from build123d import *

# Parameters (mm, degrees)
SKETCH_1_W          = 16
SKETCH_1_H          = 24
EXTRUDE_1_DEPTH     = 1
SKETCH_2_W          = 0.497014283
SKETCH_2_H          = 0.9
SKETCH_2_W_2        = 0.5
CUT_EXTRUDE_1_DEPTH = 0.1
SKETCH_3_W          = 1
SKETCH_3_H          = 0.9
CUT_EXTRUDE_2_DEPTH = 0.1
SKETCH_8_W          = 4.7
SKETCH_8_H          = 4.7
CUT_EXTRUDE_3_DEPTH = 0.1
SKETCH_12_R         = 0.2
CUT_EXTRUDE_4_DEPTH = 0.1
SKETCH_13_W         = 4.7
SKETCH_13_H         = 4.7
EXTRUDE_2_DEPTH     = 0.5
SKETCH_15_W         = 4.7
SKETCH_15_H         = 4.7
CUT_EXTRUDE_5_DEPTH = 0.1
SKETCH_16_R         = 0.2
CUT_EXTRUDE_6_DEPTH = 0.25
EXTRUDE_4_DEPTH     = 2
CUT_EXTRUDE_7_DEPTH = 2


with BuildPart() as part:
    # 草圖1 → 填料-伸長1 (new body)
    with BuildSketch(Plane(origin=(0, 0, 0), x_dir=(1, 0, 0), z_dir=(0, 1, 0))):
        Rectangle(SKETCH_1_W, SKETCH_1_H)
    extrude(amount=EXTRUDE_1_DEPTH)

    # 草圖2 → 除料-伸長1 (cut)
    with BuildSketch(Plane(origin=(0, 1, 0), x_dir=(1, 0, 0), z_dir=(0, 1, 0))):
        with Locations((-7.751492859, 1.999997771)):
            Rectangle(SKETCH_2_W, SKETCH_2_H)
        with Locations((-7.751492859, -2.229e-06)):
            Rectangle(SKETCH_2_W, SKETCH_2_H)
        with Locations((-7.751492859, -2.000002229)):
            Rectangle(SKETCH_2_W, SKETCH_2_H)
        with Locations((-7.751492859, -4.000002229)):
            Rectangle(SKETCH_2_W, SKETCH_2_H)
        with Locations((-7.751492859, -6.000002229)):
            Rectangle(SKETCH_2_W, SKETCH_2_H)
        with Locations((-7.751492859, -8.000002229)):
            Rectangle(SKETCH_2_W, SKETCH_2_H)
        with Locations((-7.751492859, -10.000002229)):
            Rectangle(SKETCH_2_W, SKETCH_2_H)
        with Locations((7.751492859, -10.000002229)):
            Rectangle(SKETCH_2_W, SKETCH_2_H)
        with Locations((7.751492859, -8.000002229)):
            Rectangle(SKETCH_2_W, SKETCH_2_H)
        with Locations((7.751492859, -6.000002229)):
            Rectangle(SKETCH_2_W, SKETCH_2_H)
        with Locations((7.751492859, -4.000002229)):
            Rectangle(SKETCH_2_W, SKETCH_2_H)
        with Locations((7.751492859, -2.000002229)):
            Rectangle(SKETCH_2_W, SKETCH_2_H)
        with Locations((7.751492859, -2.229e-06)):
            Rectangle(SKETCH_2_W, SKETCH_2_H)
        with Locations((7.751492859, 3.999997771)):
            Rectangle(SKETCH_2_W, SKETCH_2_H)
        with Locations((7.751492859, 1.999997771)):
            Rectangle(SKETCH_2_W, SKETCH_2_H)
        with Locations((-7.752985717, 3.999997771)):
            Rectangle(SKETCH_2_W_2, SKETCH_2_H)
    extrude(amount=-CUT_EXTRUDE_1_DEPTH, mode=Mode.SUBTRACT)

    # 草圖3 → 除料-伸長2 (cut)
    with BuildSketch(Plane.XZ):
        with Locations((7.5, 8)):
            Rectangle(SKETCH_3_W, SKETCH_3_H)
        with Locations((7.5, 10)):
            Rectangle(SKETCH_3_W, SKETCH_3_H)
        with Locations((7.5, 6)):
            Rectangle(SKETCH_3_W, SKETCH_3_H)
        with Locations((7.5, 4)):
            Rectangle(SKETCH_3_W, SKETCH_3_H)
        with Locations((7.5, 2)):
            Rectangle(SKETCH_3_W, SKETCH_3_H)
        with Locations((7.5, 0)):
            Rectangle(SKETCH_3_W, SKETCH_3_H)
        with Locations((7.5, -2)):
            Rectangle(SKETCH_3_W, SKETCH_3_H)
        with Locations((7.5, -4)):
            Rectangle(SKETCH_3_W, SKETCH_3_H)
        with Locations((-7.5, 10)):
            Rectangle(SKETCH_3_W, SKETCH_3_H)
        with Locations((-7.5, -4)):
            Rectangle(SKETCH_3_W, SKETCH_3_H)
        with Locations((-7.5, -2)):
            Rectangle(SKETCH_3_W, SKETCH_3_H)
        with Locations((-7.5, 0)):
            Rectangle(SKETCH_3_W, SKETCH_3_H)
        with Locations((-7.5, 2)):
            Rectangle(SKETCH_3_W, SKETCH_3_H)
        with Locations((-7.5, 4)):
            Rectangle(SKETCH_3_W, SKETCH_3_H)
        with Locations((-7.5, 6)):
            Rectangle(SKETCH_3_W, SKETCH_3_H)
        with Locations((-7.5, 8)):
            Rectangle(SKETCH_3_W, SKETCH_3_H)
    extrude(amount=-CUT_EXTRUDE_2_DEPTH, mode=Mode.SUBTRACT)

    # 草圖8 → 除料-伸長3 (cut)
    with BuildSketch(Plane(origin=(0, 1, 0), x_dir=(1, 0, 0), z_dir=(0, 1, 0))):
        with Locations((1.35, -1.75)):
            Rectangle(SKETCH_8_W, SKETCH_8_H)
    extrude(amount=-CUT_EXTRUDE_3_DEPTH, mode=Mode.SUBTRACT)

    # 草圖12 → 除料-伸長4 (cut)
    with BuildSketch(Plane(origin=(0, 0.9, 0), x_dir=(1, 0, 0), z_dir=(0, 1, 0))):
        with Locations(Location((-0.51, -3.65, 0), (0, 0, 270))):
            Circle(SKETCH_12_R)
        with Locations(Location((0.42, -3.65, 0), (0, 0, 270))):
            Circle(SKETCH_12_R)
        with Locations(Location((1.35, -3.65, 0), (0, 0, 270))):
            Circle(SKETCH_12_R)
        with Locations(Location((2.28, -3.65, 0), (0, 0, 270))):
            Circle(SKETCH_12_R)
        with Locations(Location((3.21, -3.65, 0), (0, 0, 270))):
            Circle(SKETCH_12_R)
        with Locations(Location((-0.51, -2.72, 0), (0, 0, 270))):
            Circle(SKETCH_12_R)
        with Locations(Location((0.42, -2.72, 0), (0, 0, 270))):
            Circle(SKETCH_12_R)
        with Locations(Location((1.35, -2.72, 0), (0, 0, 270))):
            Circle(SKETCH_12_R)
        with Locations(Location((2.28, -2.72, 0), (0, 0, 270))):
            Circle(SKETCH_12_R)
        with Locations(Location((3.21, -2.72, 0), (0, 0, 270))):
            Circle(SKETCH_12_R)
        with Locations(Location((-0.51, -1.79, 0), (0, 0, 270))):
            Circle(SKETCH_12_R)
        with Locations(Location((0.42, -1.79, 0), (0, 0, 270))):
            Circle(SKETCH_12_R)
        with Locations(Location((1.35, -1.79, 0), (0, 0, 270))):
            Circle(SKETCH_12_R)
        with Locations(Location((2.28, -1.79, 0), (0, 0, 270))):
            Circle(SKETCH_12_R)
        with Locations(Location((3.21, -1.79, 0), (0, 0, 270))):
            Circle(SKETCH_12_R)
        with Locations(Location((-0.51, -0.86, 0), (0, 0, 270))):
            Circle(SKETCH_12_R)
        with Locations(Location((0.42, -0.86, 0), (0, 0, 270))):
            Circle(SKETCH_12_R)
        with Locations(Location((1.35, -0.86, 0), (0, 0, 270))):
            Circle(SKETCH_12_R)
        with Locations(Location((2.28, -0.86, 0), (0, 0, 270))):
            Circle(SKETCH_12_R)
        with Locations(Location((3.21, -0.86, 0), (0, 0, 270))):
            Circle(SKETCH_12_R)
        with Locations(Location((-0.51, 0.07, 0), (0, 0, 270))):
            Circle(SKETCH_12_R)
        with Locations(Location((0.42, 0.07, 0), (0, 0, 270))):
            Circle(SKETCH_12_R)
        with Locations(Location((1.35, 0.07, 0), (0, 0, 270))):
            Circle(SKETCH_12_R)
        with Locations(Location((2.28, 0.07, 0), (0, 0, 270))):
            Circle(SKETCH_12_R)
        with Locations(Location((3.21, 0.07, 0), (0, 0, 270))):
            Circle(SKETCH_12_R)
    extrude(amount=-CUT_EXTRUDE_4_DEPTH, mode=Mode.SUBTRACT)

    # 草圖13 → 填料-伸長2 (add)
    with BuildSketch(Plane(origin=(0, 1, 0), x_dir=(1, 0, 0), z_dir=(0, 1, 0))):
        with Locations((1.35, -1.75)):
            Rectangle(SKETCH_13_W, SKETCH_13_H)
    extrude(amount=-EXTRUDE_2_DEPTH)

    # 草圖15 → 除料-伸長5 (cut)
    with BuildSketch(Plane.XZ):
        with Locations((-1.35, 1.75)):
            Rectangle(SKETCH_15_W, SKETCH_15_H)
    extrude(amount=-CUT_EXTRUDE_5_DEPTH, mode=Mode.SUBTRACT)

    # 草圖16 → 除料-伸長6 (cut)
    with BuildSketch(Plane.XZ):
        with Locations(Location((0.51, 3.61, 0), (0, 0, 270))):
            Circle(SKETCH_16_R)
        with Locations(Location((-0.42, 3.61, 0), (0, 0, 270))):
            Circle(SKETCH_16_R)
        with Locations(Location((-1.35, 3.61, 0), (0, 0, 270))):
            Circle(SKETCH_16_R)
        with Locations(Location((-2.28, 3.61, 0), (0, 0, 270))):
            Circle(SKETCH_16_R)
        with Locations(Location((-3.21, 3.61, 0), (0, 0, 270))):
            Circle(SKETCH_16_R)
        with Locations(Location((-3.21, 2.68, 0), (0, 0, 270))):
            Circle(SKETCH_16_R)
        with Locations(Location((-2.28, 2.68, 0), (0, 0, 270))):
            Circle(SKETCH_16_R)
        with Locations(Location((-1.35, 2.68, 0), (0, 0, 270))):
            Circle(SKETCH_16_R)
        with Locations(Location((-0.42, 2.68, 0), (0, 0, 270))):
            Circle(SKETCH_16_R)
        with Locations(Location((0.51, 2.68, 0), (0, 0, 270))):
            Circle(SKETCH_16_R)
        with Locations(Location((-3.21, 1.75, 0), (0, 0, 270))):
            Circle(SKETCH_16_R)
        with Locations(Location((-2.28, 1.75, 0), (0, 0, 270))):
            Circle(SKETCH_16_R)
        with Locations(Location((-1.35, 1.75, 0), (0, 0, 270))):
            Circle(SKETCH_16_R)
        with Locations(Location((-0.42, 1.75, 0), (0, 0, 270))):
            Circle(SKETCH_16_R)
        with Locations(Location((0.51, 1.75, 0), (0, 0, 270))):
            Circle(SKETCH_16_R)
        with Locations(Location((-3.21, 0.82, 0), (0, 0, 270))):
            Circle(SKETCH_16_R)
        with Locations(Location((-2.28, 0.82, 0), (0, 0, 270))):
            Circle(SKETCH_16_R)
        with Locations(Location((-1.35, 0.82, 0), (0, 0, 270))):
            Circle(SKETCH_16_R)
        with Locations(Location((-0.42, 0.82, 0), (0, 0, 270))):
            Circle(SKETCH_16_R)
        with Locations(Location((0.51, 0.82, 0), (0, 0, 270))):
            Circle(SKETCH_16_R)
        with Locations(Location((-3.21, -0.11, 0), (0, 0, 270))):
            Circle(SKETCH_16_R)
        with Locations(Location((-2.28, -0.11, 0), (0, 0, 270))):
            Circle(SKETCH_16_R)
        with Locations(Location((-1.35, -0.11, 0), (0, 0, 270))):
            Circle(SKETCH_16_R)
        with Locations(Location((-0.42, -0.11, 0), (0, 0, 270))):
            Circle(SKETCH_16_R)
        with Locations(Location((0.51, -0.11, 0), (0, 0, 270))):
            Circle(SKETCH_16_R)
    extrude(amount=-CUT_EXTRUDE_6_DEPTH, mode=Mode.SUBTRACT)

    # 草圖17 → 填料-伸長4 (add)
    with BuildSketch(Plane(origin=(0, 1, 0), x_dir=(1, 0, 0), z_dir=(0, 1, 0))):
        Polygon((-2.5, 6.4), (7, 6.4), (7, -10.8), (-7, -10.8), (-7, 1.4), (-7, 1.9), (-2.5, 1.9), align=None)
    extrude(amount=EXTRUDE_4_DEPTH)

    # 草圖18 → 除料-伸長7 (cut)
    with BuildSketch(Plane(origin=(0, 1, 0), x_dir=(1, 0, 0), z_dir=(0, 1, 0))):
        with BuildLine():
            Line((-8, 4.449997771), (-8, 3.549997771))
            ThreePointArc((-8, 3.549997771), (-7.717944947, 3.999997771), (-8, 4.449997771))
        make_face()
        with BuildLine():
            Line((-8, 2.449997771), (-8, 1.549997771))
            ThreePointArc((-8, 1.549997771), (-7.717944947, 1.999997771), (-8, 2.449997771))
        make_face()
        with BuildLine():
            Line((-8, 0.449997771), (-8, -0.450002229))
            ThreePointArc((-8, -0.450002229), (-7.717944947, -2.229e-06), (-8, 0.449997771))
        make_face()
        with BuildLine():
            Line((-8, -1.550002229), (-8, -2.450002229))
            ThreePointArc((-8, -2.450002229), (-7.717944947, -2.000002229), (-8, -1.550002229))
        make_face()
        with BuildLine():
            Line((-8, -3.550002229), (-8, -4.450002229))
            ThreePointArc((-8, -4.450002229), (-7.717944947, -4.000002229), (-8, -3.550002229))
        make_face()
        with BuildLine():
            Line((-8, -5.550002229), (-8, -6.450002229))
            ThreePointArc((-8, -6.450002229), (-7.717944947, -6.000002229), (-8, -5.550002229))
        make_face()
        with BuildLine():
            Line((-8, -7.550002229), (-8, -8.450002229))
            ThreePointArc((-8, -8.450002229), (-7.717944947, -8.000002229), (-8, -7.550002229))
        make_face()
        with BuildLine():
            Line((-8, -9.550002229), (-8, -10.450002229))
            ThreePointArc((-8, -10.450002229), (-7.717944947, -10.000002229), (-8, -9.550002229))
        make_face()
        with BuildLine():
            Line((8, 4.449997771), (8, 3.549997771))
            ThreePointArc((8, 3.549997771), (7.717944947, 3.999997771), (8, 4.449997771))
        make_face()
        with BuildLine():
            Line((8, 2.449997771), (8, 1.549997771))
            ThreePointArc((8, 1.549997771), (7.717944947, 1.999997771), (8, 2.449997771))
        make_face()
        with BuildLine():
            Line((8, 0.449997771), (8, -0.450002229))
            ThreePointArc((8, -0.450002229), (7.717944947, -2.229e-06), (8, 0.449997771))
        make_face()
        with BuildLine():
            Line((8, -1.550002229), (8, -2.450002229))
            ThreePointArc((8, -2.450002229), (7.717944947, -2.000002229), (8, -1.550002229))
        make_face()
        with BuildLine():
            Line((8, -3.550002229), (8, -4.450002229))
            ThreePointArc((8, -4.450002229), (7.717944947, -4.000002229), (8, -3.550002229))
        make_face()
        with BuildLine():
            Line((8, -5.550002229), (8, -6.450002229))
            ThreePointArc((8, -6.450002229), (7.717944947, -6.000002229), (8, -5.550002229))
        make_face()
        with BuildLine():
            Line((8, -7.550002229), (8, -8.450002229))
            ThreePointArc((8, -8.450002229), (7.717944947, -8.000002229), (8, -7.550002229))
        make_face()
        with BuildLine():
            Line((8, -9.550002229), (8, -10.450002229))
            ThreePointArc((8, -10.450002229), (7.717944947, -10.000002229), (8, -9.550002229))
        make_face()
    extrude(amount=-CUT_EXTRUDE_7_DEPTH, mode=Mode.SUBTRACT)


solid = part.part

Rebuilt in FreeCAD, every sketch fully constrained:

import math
import FreeCAD as App
import Part
import Sketcher
from FreeCAD import Vector


def add_polygon(sketch, points):
    """Adds a closed chain of lines whose ends are joined by coincident constraints."""
    first, n = sketch.GeometryCount, len(points)
    for a, b in zip(points, points[1:] + points[:1]):
        sketch.addGeometry(Part.LineSegment(App.Vector(*a, 0), App.Vector(*b, 0)), False)
    for i in range(n):
        sketch.addConstraint(Sketcher.Constraint("Coincident", first + i, 2, first + (i + 1) % n, 1))

doc = App.newDocument("Part")
body = doc.addObject("PartDesign::Body", "Body")

# Sketch on XZ plane
sketch1 = doc.addObject("Sketcher::SketchObject", "Sketch")
body.addObject(sketch1)
sketch1.AttachmentSupport = (doc.XZ_Plane, [""])
sketch1.MapMode = "FlatFace"
add_polygon(sketch1, [(-8, -12), (-8, 12), (8, 12), (8, -12)])  # lines 0-3
sketch1.addConstraint([
    Sketcher.Constraint("Vertical", 0),
    Sketcher.Constraint("Horizontal", 1),
    Sketcher.Constraint("Vertical", 2),
    Sketcher.Constraint("Horizontal", 3),
    Sketcher.Constraint("Symmetric", 0, 2, 2, 2, -1, 1),
    Sketcher.Constraint("DistanceX", 1, 1, 1, 2, 16.0),
    Sketcher.Constraint("DistanceY", 0, 1, 0, 2, 24.0),
])
pad1 = doc.addObject("PartDesign::Pad", "Pad")
body.addObject(pad1)
pad1.Profile = sketch1
pad1.Length = 1
pad1.Reversed = True

# Sketch on XZ plane
sketch2 = doc.addObject("Sketcher::SketchObject", "Sketch001")
body.addObject(sketch2)
sketch2.AttachmentSupport = (doc.XZ_Plane, [""])
sketch2.MapMode = "FlatFace"
sketch2.AttachmentOffset = App.Placement(Vector(0, 0, -1), App.Rotation())
add_polygon(sketch2, [(-8, -2.45), (-8, -1.55), (-7.5, -1.55), (-7.5, -2.45)])  # lines 0-3
add_polygon(sketch2, [(-8, -0.45), (-8, 0.45), (-7.5, 0.45), (-7.5, -0.45)])  # lines 4-7
add_polygon(sketch2, [(-8, 1.55), (-8, 2.45), (-7.5, 2.45), (-7.5, 1.55)])  # lines 8-11
add_polygon(sketch2, [(-8, 3.55), (-8, 4.45), (-7.5, 4.45), (-7.5, 3.55)])  # lines 12-15
add_polygon(sketch2, [(-8, 5.55), (-8, 6.45), (-7.5, 6.45), (-7.5, 5.55)])  # lines 16-19
add_polygon(sketch2, [(-8, 7.55), (-8, 8.45), (-7.5, 8.45), (-7.5, 7.55)])  # lines 20-23
add_polygon(sketch2, [(-8, 9.55), (-8, 10.45), (-7.5, 10.45), (-7.5, 9.55)])  # lines 24-27
add_polygon(sketch2, [(7.5, 9.55), (7.5, 10.45), (8, 10.45), (8, 9.55)])  # lines 28-31
add_polygon(sketch2, [(7.5, 7.55), (7.5, 8.45), (8, 8.45), (8, 7.55)])  # lines 32-35
add_polygon(sketch2, [(7.5, 5.55), (7.5, 6.45), (8, 6.45), (8, 5.55)])  # lines 36-39
add_polygon(sketch2, [(7.5, 3.55), (7.5, 4.45), (8, 4.45), (8, 3.55)])  # lines 40-43
add_polygon(sketch2, [(7.5, 1.55), (7.5, 2.45), (8, 2.45), (8, 1.55)])  # lines 44-47
add_polygon(sketch2, [(7.5, -0.45), (7.5, 0.45), (8, 0.45), (8, -0.45)])  # lines 48-51
add_polygon(sketch2, [(7.5, -4.45), (7.5, -3.55), (8, -3.55), (8, -4.45)])  # lines 52-55
add_polygon(sketch2, [(7.5, -2.45), (7.5, -1.55), (8, -1.55), (8, -2.45)])  # lines 56-59
add_polygon(sketch2, [(-8, -4.45), (-8, -3.55), (-7.5, -3.55), (-7.5, -4.45)])  # lines 60-63
sketch2.addConstraint([
    Sketcher.Constraint("Vertical", 0),
    Sketcher.Constraint("Horizontal", 1),
    Sketcher.Constraint("Vertical", 2),
    Sketcher.Constraint("Horizontal", 3),
    Sketcher.Constraint("Vertical", 4),
    Sketcher.Constraint("Horizontal", 5),
    Sketcher.Constraint("Vertical", 6),
    Sketcher.Constraint("Horizontal", 7),
    Sketcher.Constraint("Vertical", 8),
    Sketcher.Constraint("Horizontal", 9),
    Sketcher.Constraint("Vertical", 10),
    Sketcher.Constraint("Horizontal", 11),
    Sketcher.Constraint("Vertical", 12),
    Sketcher.Constraint("Horizontal", 13),
    Sketcher.Constraint("Vertical", 14),
    Sketcher.Constraint("Horizontal", 15),
    Sketcher.Constraint("Vertical", 16),
    Sketcher.Constraint("Horizontal", 17),
    Sketcher.Constraint("Vertical", 18),
    Sketcher.Constraint("Horizontal", 19),
    Sketcher.Constraint("Vertical", 20),
    Sketcher.Constraint("Horizontal", 21),
    Sketcher.Constraint("Vertical", 22),
    Sketcher.Constraint("Horizontal", 23),
    Sketcher.Constraint("Vertical", 24),
    Sketcher.Constraint("Horizontal", 25),
    Sketcher.Constraint("Vertical", 26),
    Sketcher.Constraint("Horizontal", 27),
    Sketcher.Constraint("Vertical", 28),
    Sketcher.Constraint("Horizontal", 29),
    Sketcher.Constraint("Vertical", 30),
    Sketcher.Constraint("Horizontal", 31),
    Sketcher.Constraint("Vertical", 32),
    Sketcher.Constraint("Horizontal", 33),
    Sketcher.Constraint("Vertical", 34),
    Sketcher.Constraint("Horizontal", 35),
    Sketcher.Constraint("Vertical", 36),
    Sketcher.Constraint("Horizontal", 37),
    Sketcher.Constraint("Vertical", 38),
    Sketcher.Constraint("Horizontal", 39),
    Sketcher.Constraint("Vertical", 40),
    Sketcher.Constraint("Horizontal", 41),
    Sketcher.Constraint("Vertical", 42),
    Sketcher.Constraint("Horizontal", 43),
    Sketcher.Constraint("Vertical", 44),
    Sketcher.Constraint("Horizontal", 45),
    Sketcher.Constraint("Vertical", 46),
    Sketcher.Constraint("Horizontal", 47),
    Sketcher.Constraint("Vertical", 48),
    Sketcher.Constraint("Horizontal", 49),
    Sketcher.Constraint("Vertical", 50),
    Sketcher.Constraint("Horizontal", 51),
    Sketcher.Constraint("Vertical", 52),
    Sketcher.Constraint("Horizontal", 53),
    Sketcher.Constraint("Vertical", 54),
    Sketcher.Constraint("Horizontal", 55),
    Sketcher.Constraint("Vertical", 56),
    Sketcher.Constraint("Horizontal", 57),
    Sketcher.Constraint("Vertical", 58),
    Sketcher.Constraint("Horizontal", 59),
    Sketcher.Constraint("Vertical", 60),
    Sketcher.Constraint("Horizontal", 61),
    Sketcher.Constraint("Vertical", 62),
    Sketcher.Constraint("Horizontal", 63),
    Sketcher.Constraint("Symmetric", 2, 2, 44, 2, -1, 1),
    Sketcher.Constraint("Symmetric", 0, 2, 46, 2, -1, 1),
    Sketcher.Constraint("Symmetric", 6, 2, 48, 2, -1, 1),
    Sketcher.Constraint("Symmetric", 4, 2, 50, 2, -1, 1),
    Sketcher.Constraint("Symmetric", 14, 2, 52, 2, -1, 1),
    Sketcher.Constraint("Symmetric", 12, 2, 54, 2, -1, 1),
    Sketcher.Constraint("Symmetric", 10, 2, 56, 2, -1, 1),
    Sketcher.Constraint("Symmetric", 8, 2, 58, 2, -1, 1),
    Sketcher.Constraint("Symmetric", 43, 2, 61, 2, -1, 1),
    Sketcher.Constraint("Symmetric", 25, 2, 28, 2, -2),
    Sketcher.Constraint("Symmetric", 27, 2, 30, 2, -2),
    Sketcher.Constraint("Symmetric", 21, 2, 32, 2, -2),
    Sketcher.Constraint("Symmetric", 23, 2, 34, 2, -2),
    Sketcher.Constraint("Symmetric", 17, 2, 36, 2, -2),
    Sketcher.Constraint("Symmetric", 19, 2, 38, 2, -2),
    Sketcher.Constraint("Symmetric", 13, 2, 40, 2, -2),
    Sketcher.Constraint("Symmetric", 15, 2, 42, 2, -2),
    Sketcher.Constraint("Symmetric", 9, 2, 44, 2, -2),
    Sketcher.Constraint("Symmetric", 11, 2, 46, 2, -2),
    Sketcher.Constraint("Horizontal", 5, 2, 48, 2),
    Sketcher.Constraint("Horizontal", 55, 2, 62, 2),
    Sketcher.Constraint("Vertical", 3, 2, 4, 2),
    Sketcher.Constraint("Vertical", 2, 2, 5, 2),
    Sketcher.Constraint("Vertical", 11, 2, 12, 2),
    Sketcher.Constraint("Vertical", 10, 2, 13, 2),
    Sketcher.Constraint("Vertical", 15, 2, 16, 2),
    Sketcher.Constraint("Vertical", 14, 2, 17, 2),
    Sketcher.Constraint("Vertical", 19, 2, 20, 2),
    Sketcher.Constraint("Vertical", 18, 2, 21, 2),
    Sketcher.Constraint("Vertical", 23, 2, 24, 2),
    Sketcher.Constraint("Vertical", 22, 2, 25, 2),
    Sketcher.Constraint("Equal", 2, 4),
    Sketcher.Constraint("Equal", 10, 12),
    Sketcher.Constraint("Equal", 14, 16),
    Sketcher.Constraint("Equal", 18, 20),
    Sketcher.Constraint("Equal", 22, 24),
    Sketcher.Constraint("DistanceX", 61, 1, 61, 2, 0.5),
    Sketcher.Constraint("DistanceY", 0, 1, 0, 2, 0.9),
    Sketcher.Constraint("DistanceX", 0, 2, -1, 1, 8.0),
    Sketcher.Constraint("DistanceX", 1, 1, 1, 2, 0.497014),
    Sketcher.Constraint("DistanceY", 0, 2, -1, 1, 1.549998),
    Sketcher.Constraint("DistanceY", -1, 1, 12, 2, 4.450002),
    Sketcher.Constraint("DistanceY", -1, 1, 16, 2, 6.450002),
    Sketcher.Constraint("DistanceY", -1, 1, 20, 2, 8.450002),
    Sketcher.Constraint("DistanceY", -1, 1, 24, 2, 10.450002),
])
pocket1 = doc.addObject("PartDesign::Pocket", "Pocket")
body.addObject(pocket1)
pocket1.Profile = sketch2
pocket1.Length = 0.1
pocket1.Reversed = True

# Sketch on XZ plane
sketch3 = doc.addObject("Sketcher::SketchObject", "Sketch002")
body.addObject(sketch3)
sketch3.AttachmentSupport = (doc.XZ_Plane, [""])
sketch3.MapMode = "FlatFace"
add_polygon(sketch3, [(7, 8.4), (7, 7.5), (8, 7.5), (8, 8.4)])  # lines 0-3
add_polygon(sketch3, [(7, 10.4), (7, 9.6), (8, 9.6), (8, 10.4)])  # lines 4-7
add_polygon(sketch3, [(7, 6.5), (7, 5.5), (8, 5.5), (8, 6.5)])  # lines 8-11
add_polygon(sketch3, [(7, 4.5), (7, 3.5), (8, 3.5), (8, 4.5)])  # lines 12-15
add_polygon(sketch3, [(7, 2.5), (7, 1.6), (8, 1.6), (8, 2.5)])  # lines 16-19
add_polygon(sketch3, [(7, 0.5), (7, -0.5), (8, -0.5), (8, 0.5)])  # lines 20-23
add_polygon(sketch3, [(7, -1.6), (7, -2.5), (8, -2.5), (8, -1.6)])  # lines 24-27
add_polygon(sketch3, [(7, -3.5), (7, -4.5), (8, -4.5), (8, -3.5)])  # lines 28-31
add_polygon(sketch3, [(-8, 10.4), (-8, 9.6), (-7, 9.6), (-7, 10.4)])  # lines 32-35
add_polygon(sketch3, [(-8, -3.5), (-8, -4.5), (-7, -4.5), (-7, -3.5)])  # lines 36-39
add_polygon(sketch3, [(-8, -1.6), (-8, -2.5), (-7, -2.5), (-7, -1.6)])  # lines 40-43
add_polygon(sketch3, [(-8, 0.5), (-8, -0.5), (-7, -0.5), (-7, 0.5)])  # lines 44-47
add_polygon(sketch3, [(-8, 2.5), (-8, 1.6), (-7, 1.6), (-7, 2.5)])  # lines 48-51
add_polygon(sketch3, [(-8, 4.5), (-8, 3.5), (-7, 3.5), (-7, 4.5)])  # lines 52-55
add_polygon(sketch3, [(-8, 6.5), (-8, 5.5), (-7, 5.5), (-7, 6.5)])  # lines 56-59
add_polygon(sketch3, [(-8, 8.4), (-8, 7.5), (-7, 7.5), (-7, 8.4)])  # lines 60-63
sketch3.addConstraint([
    Sketcher.Constraint("Vertical", 0),
    Sketcher.Constraint("Horizontal", 1),
    Sketcher.Constraint("Vertical", 2),
    Sketcher.Constraint("Horizontal", 3),
    Sketcher.Constraint("Vertical", 4),
    Sketcher.Constraint("Horizontal", 5),
    Sketcher.Constraint("Vertical", 6),
    Sketcher.Constraint("Horizontal", 7),
    Sketcher.Constraint("Vertical", 8),
    Sketcher.Constraint("Horizontal", 9),
    Sketcher.Constraint("Vertical", 10),
    Sketcher.Constraint("Horizontal", 11),
    Sketcher.Constraint("Vertical", 12),
    Sketcher.Constraint("Horizontal", 13),
    Sketcher.Constraint("Vertical", 14),
    Sketcher.Constraint("Horizontal", 15),
    Sketcher.Constraint("Vertical", 16),
    Sketcher.Constraint("Horizontal", 17),
    Sketcher.Constraint("Vertical", 18),
    Sketcher.Constraint("Horizontal", 19),
    Sketcher.Constraint("Vertical", 20),
    Sketcher.Constraint("Horizontal", 21),
    Sketcher.Constraint("Vertical", 22),
    Sketcher.Constraint("Horizontal", 23),
    Sketcher.Constraint("Vertical", 24),
    Sketcher.Constraint("Horizontal", 25),
    Sketcher.Constraint("Vertical", 26),
    Sketcher.Constraint("Horizontal", 27),
    Sketcher.Constraint("Vertical", 28),
    Sketcher.Constraint("Horizontal", 29),
    Sketcher.Constraint("Vertical", 30),
    Sketcher.Constraint("Horizontal", 31),
    Sketcher.Constraint("Vertical", 32),
    Sketcher.Constraint("Horizontal", 33),
    Sketcher.Constraint("Vertical", 34),
    Sketcher.Constraint("Horizontal", 35),
    Sketcher.Constraint("Vertical", 36),
    Sketcher.Constraint("Horizontal", 37),
    Sketcher.Constraint("Vertical", 38),
    Sketcher.Constraint("Horizontal", 39),
    Sketcher.Constraint("Vertical", 40),
    Sketcher.Constraint("Horizontal", 41),
    Sketcher.Constraint("Vertical", 42),
    Sketcher.Constraint("Horizontal", 43),
    Sketcher.Constraint("Vertical", 44),
    Sketcher.Constraint("Horizontal", 45),
    Sketcher.Constraint("Vertical", 46),
    Sketcher.Constraint("Horizontal", 47),
    Sketcher.Constraint("Vertical", 48),
    Sketcher.Constraint("Horizontal", 49),
    Sketcher.Constraint("Vertical", 50),
    Sketcher.Constraint("Horizontal", 51),
    Sketcher.Constraint("Vertical", 52),
    Sketcher.Constraint("Horizontal", 53),
    Sketcher.Constraint("Vertical", 54),
    Sketcher.Constraint("Horizontal", 55),
    Sketcher.Constraint("Vertical", 56),
    Sketcher.Constraint("Horizontal", 57),
    Sketcher.Constraint("Vertical", 58),
    Sketcher.Constraint("Horizontal", 59),
    Sketcher.Constraint("Vertical", 60),
    Sketcher.Constraint("Horizontal", 61),
    Sketcher.Constraint("Vertical", 62),
    Sketcher.Constraint("Horizontal", 63),
    Sketcher.Constraint("Symmetric", 14, 2, 36, 2, -1, 1),
    Sketcher.Constraint("Symmetric", 12, 2, 38, 2, -1, 1),
    Sketcher.Constraint("Symmetric", 18, 2, 40, 2, -1, 1),
    Sketcher.Constraint("Symmetric", 16, 2, 42, 2, -1, 1),
    Sketcher.Constraint("Symmetric", 22, 2, 44, 2, -1, 1),
    Sketcher.Constraint("Symmetric", 20, 2, 46, 2, -1, 1),
    Sketcher.Constraint("Symmetric", 26, 2, 48, 2, -1, 1),
    Sketcher.Constraint("Symmetric", 24, 2, 50, 2, -1, 1),
    Sketcher.Constraint("Symmetric", 30, 2, 52, 2, -1, 1),
    Sketcher.Constraint("Symmetric", 28, 2, 54, 2, -1, 1),
    Sketcher.Constraint("Symmetric", 5, 2, 32, 2, -2),
    Sketcher.Constraint("Symmetric", 7, 2, 34, 2, -2),
    Sketcher.Constraint("Symmetric", 29, 2, 36, 2, -2),
    Sketcher.Constraint("Symmetric", 31, 2, 38, 2, -2),
    Sketcher.Constraint("Symmetric", 25, 2, 40, 2, -2),
    Sketcher.Constraint("Symmetric", 27, 2, 42, 2, -2),
    Sketcher.Constraint("Symmetric", 9, 2, 56, 2, -2),
    Sketcher.Constraint("Symmetric", 11, 2, 58, 2, -2),
    Sketcher.Constraint("Symmetric", 1, 2, 60, 2, -2),
    Sketcher.Constraint("Symmetric", 3, 2, 62, 2, -2),
    Sketcher.Constraint("Horizontal", 21, 2, 44, 2),
    Sketcher.Constraint("Vertical", 3, 2, 4, 2),
    Sketcher.Constraint("Vertical", 2, 2, 5, 2),
    Sketcher.Constraint("Vertical", 7, 2, 8, 2),
    Sketcher.Constraint("Vertical", 6, 2, 9, 2),
    Sketcher.Constraint("Vertical", 11, 2, 12, 2),
    Sketcher.Constraint("Vertical", 10, 2, 13, 2),
    Sketcher.Constraint("Vertical", 15, 2, 16, 2),
    Sketcher.Constraint("Vertical", 14, 2, 17, 2),
    Sketcher.Constraint("Vertical", 19, 2, 20, 2),
    Sketcher.Constraint("Vertical", 18, 2, 21, 2),
    Sketcher.Constraint("Equal", 2, 4),
    Sketcher.Constraint("Equal", 6, 8),
    Sketcher.Constraint("Equal", 10, 12),
    Sketcher.Constraint("Equal", 14, 16),
    Sketcher.Constraint("Equal", 18, 20),
    Sketcher.Constraint("DistanceX", 1, 1, 1, 2, 1.0),
    Sketcher.Constraint("DistanceY", 0, 2, 0, 1, 0.9),
    Sketcher.Constraint("DistanceX", -1, 1, 0, 2, 7.0),
    Sketcher.Constraint("DistanceY", -1, 1, 0, 2, 7.55),
    Sketcher.Constraint("DistanceY", -1, 1, 4, 2, 9.55),
    Sketcher.Constraint("DistanceY", -1, 1, 8, 2, 5.55),
    Sketcher.Constraint("DistanceY", -1, 1, 12, 2, 3.55),
    Sketcher.Constraint("DistanceY", -1, 1, 16, 2, 1.55),
])
pocket2 = doc.addObject("PartDesign::Pocket", "Pocket001")
body.addObject(pocket2)
pocket2.Profile = sketch3
pocket2.Length = 0.1

# Sketch on XZ plane
sketch4 = doc.addObject("Sketcher::SketchObject", "Sketch003")
body.addObject(sketch4)
sketch4.AttachmentSupport = (doc.XZ_Plane, [""])
sketch4.MapMode = "FlatFace"
sketch4.AttachmentOffset = App.Placement(Vector(0, 0, -1), App.Rotation())
add_polygon(sketch4, [(-1, -0.6), (-1, 4.1), (3.7, 4.1), (3.7, -0.6)])  # lines 0-3
sketch4.addConstraint([
    Sketcher.Constraint("Vertical", 0),
    Sketcher.Constraint("Horizontal", 1),
    Sketcher.Constraint("Vertical", 2),
    Sketcher.Constraint("Horizontal", 3),
    Sketcher.Constraint("Equal", 3, 0),
    Sketcher.Constraint("DistanceX", 1, 1, 1, 2, 4.7),
    Sketcher.Constraint("DistanceX", 0, 2, -1, 1, 1.0),
    Sketcher.Constraint("DistanceY", -1, 1, 0, 2, 4.1),
])
pocket3 = doc.addObject("PartDesign::Pocket", "Pocket002")
body.addObject(pocket3)
pocket3.Profile = sketch4
pocket3.Length = 0.1
pocket3.Reversed = True

# Sketch on XZ plane
sketch5 = doc.addObject("Sketcher::SketchObject", "Sketch004")
body.addObject(sketch5)
sketch5.AttachmentSupport = (doc.XZ_Plane, [""])
sketch5.MapMode = "FlatFace"
sketch5.AttachmentOffset = App.Placement(Vector(0, 0, -0.9), App.Rotation())
sketch5.addGeometry([
    Part.Circle(Vector(-0.51, 3.65, 0), Vector(0, 0, 1), 0.2),  # 0
    Part.Circle(Vector(0.42, 3.65, 0), Vector(0, 0, 1), 0.2),  # 1
    Part.Circle(Vector(1.35, 3.65, 0), Vector(0, 0, 1), 0.2),  # 2
    Part.Circle(Vector(2.28, 3.65, 0), Vector(0, 0, 1), 0.2),  # 3
    Part.Circle(Vector(3.21, 3.65, 0), Vector(0, 0, 1), 0.2),  # 4
    Part.Circle(Vector(-0.51, 2.72, 0), Vector(0, 0, 1), 0.2),  # 5
    Part.Circle(Vector(0.42, 2.72, 0), Vector(0, 0, 1), 0.2),  # 6
    Part.Circle(Vector(1.35, 2.72, 0), Vector(0, 0, 1), 0.2),  # 7
    Part.Circle(Vector(2.28, 2.72, 0), Vector(0, 0, 1), 0.2),  # 8
    Part.Circle(Vector(3.21, 2.72, 0), Vector(0, 0, 1), 0.2),  # 9
    Part.Circle(Vector(-0.51, 1.79, 0), Vector(0, 0, 1), 0.2),  # 10
    Part.Circle(Vector(0.42, 1.79, 0), Vector(0, 0, 1), 0.2),  # 11
    Part.Circle(Vector(1.35, 1.79, 0), Vector(0, 0, 1), 0.2),  # 12
    Part.Circle(Vector(2.28, 1.79, 0), Vector(0, 0, 1), 0.2),  # 13
    Part.Circle(Vector(3.21, 1.79, 0), Vector(0, 0, 1), 0.2),  # 14
    Part.Circle(Vector(-0.51, 0.86, 0), Vector(0, 0, 1), 0.2),  # 15
    Part.Circle(Vector(0.42, 0.86, 0), Vector(0, 0, 1), 0.2),  # 16
    Part.Circle(Vector(1.35, 0.86, 0), Vector(0, 0, 1), 0.2),  # 17
    Part.Circle(Vector(2.28, 0.86, 0), Vector(0, 0, 1), 0.2),  # 18
    Part.Circle(Vector(3.21, 0.86, 0), Vector(0, 0, 1), 0.2),  # 19
    Part.Circle(Vector(-0.51, -0.07, 0), Vector(0, 0, 1), 0.2),  # 20
    Part.Circle(Vector(0.42, -0.07, 0), Vector(0, 0, 1), 0.2),  # 21
    Part.Circle(Vector(1.35, -0.07, 0), Vector(0, 0, 1), 0.2),  # 22
    Part.Circle(Vector(2.28, -0.07, 0), Vector(0, 0, 1), 0.2),  # 23
    Part.Circle(Vector(3.21, -0.07, 0), Vector(0, 0, 1), 0.2),  # 24
], False)
sketch5.addConstraint([
    Sketcher.Constraint("Equal", 0, 1),
    Sketcher.Constraint("Equal", 1, 2),
    Sketcher.Constraint("Equal", 2, 3),
    Sketcher.Constraint("Equal", 3, 4),
    Sketcher.Constraint("Equal", 4, 5),
    Sketcher.Constraint("Equal", 5, 6),
    Sketcher.Constraint("Equal", 6, 7),
    Sketcher.Constraint("Equal", 7, 8),
    Sketcher.Constraint("Equal", 8, 9),
    Sketcher.Constraint("Equal", 9, 10),
    Sketcher.Constraint("Equal", 10, 11),
    Sketcher.Constraint("Equal", 11, 12),
    Sketcher.Constraint("Equal", 12, 13),
    Sketcher.Constraint("Equal", 13, 14),
    Sketcher.Constraint("Equal", 14, 15),
    Sketcher.Constraint("Equal", 15, 16),
    Sketcher.Constraint("Equal", 16, 17),
    Sketcher.Constraint("Equal", 17, 18),
    Sketcher.Constraint("Equal", 18, 19),
    Sketcher.Constraint("Equal", 19, 20),
    Sketcher.Constraint("Equal", 20, 21),
    Sketcher.Constraint("Equal", 21, 22),
    Sketcher.Constraint("Equal", 22, 23),
    Sketcher.Constraint("Equal", 23, 24),
    Sketcher.Constraint("Horizontal", 0, 3, 1, 3),
    Sketcher.Constraint("Horizontal", 1, 3, 2, 3),
    Sketcher.Constraint("Horizontal", 2, 3, 3, 3),
    Sketcher.Constraint("Horizontal", 3, 3, 4, 3),
    Sketcher.Constraint("Horizontal", 5, 3, 6, 3),
    Sketcher.Constraint("Horizontal", 6, 3, 7, 3),
    Sketcher.Constraint("Horizontal", 7, 3, 8, 3),
    Sketcher.Constraint("Horizontal", 8, 3, 9, 3),
    Sketcher.Constraint("Horizontal", 10, 3, 11, 3),
    Sketcher.Constraint("Horizontal", 11, 3, 12, 3),
    Sketcher.Constraint("Horizontal", 12, 3, 13, 3),
    Sketcher.Constraint("Horizontal", 13, 3, 14, 3),
    Sketcher.Constraint("Horizontal", 15, 3, 16, 3),
    Sketcher.Constraint("Horizontal", 16, 3, 17, 3),
    Sketcher.Constraint("Horizontal", 17, 3, 18, 3),
    Sketcher.Constraint("Horizontal", 18, 3, 19, 3),
    Sketcher.Constraint("Horizontal", 20, 3, 21, 3),
    Sketcher.Constraint("Horizontal", 21, 3, 22, 3),
    Sketcher.Constraint("Horizontal", 22, 3, 23, 3),
    Sketcher.Constraint("Horizontal", 23, 3, 24, 3),
    Sketcher.Constraint("Vertical", 0, 3, 5, 3),
    Sketcher.Constraint("Vertical", 1, 3, 6, 3),
    Sketcher.Constraint("Vertical", 2, 3, 7, 3),
    Sketcher.Constraint("Vertical", 3, 3, 8, 3),
    Sketcher.Constraint("Vertical", 4, 3, 9, 3),
    Sketcher.Constraint("Vertical", 5, 3, 10, 3),
    Sketcher.Constraint("Vertical", 6, 3, 11, 3),
    Sketcher.Constraint("Vertical", 7, 3, 12, 3),
    Sketcher.Constraint("Vertical", 8, 3, 13, 3),
    Sketcher.Constraint("Vertical", 9, 3, 14, 3),
    Sketcher.Constraint("Vertical", 10, 3, 15, 3),
    Sketcher.Constraint("Vertical", 11, 3, 16, 3),
    Sketcher.Constraint("Vertical", 12, 3, 17, 3),
    Sketcher.Constraint("Vertical", 13, 3, 18, 3),
    Sketcher.Constraint("Vertical", 14, 3, 19, 3),
    Sketcher.Constraint("Vertical", 15, 3, 20, 3),
    Sketcher.Constraint("Vertical", 16, 3, 21, 3),
    Sketcher.Constraint("Vertical", 17, 3, 22, 3),
    Sketcher.Constraint("Vertical", 18, 3, 23, 3),
    Sketcher.Constraint("Vertical", 19, 3, 24, 3),
    Sketcher.Constraint("Diameter", 0, 0.4),
    Sketcher.Constraint("DistanceX", 0, 3, -1, 1, 0.51),
    Sketcher.Constraint("DistanceY", -1, 1, 0, 3, 3.65),
    Sketcher.Constraint("DistanceX", -1, 1, 1, 3, 0.42),
    Sketcher.Constraint("DistanceX", -1, 1, 2, 3, 1.35),
    Sketcher.Constraint("DistanceX", -1, 1, 3, 3, 2.28),
    Sketcher.Constraint("DistanceX", -1, 1, 4, 3, 3.21),
    Sketcher.Constraint("DistanceY", -1, 1, 5, 3, 2.72),
    Sketcher.Constraint("DistanceY", -1, 1, 10, 3, 1.79),
    Sketcher.Constraint("DistanceY", -1, 1, 15, 3, 0.86),
    Sketcher.Constraint("DistanceY", 20, 3, -1, 1, 0.07),
])
pocket4 = doc.addObject("PartDesign::Pocket", "Pocket003")
body.addObject(pocket4)
pocket4.Profile = sketch5
pocket4.Length = 0.1
pocket4.Reversed = True

# Sketch on XZ plane
sketch6 = doc.addObject("Sketcher::SketchObject", "Sketch005")
body.addObject(sketch6)
sketch6.AttachmentSupport = (doc.XZ_Plane, [""])
sketch6.MapMode = "FlatFace"
sketch6.AttachmentOffset = App.Placement(Vector(0, 0, -1), App.Rotation())
add_polygon(sketch6, [(-1, -0.6), (-1, 4.1), (3.7, 4.1), (3.7, -0.6)])  # lines 0-3
sketch6.addConstraint([
    Sketcher.Constraint("Vertical", 0),
    Sketcher.Constraint("Horizontal", 1),
    Sketcher.Constraint("Vertical", 2),
    Sketcher.Constraint("Horizontal", 3),
    Sketcher.Constraint("Equal", 3, 0),
    Sketcher.Constraint("DistanceX", 1, 1, 1, 2, 4.7),
    Sketcher.Constraint("DistanceX", 0, 2, -1, 1, 1.0),
    Sketcher.Constraint("DistanceY", -1, 1, 0, 2, 4.1),
])
pad2 = doc.addObject("PartDesign::Pad", "Pad001")
body.addObject(pad2)
pad2.Profile = sketch6
pad2.Length = 0.5

# Sketch on XZ plane
sketch7 = doc.addObject("Sketcher::SketchObject", "Sketch006")
body.addObject(sketch7)
sketch7.AttachmentSupport = (doc.XZ_Plane, [""])
sketch7.MapMode = "FlatFace"
add_polygon(sketch7, [(-3.7, 4.1), (-3.7, -0.6), (1, -0.6), (1, 4.1)])  # lines 0-3
sketch7.addConstraint([
    Sketcher.Constraint("Vertical", 0),
    Sketcher.Constraint("Horizontal", 1),
    Sketcher.Constraint("Vertical", 2),
    Sketcher.Constraint("Horizontal", 3),
    Sketcher.Constraint("Equal", 3, 0),
    Sketcher.Constraint("DistanceX", 1, 1, 1, 2, 4.7),
    Sketcher.Constraint("DistanceX", -1, 1, 1, 2, 1.0),
    Sketcher.Constraint("DistanceY", 0, 2, -1, 1, 0.6),
])
pocket5 = doc.addObject("PartDesign::Pocket", "Pocket004")
body.addObject(pocket5)
pocket5.Profile = sketch7
pocket5.Length = 0.1

# Sketch on XZ plane
sketch8 = doc.addObject("Sketcher::SketchObject", "Sketch007")
body.addObject(sketch8)
sketch8.AttachmentSupport = (doc.XZ_Plane, [""])
sketch8.MapMode = "FlatFace"
sketch8.addGeometry([
    Part.Circle(Vector(0.51, 3.61, 0), Vector(0, 0, 1), 0.2),  # 0
    Part.Circle(Vector(-0.42, 3.61, 0), Vector(0, 0, 1), 0.2),  # 1
    Part.Circle(Vector(-1.35, 3.61, 0), Vector(0, 0, 1), 0.2),  # 2
    Part.Circle(Vector(-2.28, 3.61, 0), Vector(0, 0, 1), 0.2),  # 3
    Part.Circle(Vector(-3.21, 3.61, 0), Vector(0, 0, 1), 0.2),  # 4
    Part.Circle(Vector(-3.21, 2.68, 0), Vector(0, 0, 1), 0.2),  # 5
    Part.Circle(Vector(-2.28, 2.68, 0), Vector(0, 0, 1), 0.2),  # 6
    Part.Circle(Vector(-1.35, 2.68, 0), Vector(0, 0, 1), 0.2),  # 7
    Part.Circle(Vector(-0.42, 2.68, 0), Vector(0, 0, 1), 0.2),  # 8
    Part.Circle(Vector(0.51, 2.68, 0), Vector(0, 0, 1), 0.2),  # 9
    Part.Circle(Vector(-3.21, 1.75, 0), Vector(0, 0, 1), 0.2),  # 10
    Part.Circle(Vector(-2.28, 1.75, 0), Vector(0, 0, 1), 0.2),  # 11
    Part.Circle(Vector(-1.35, 1.75, 0), Vector(0, 0, 1), 0.2),  # 12
    Part.Circle(Vector(-0.42, 1.75, 0), Vector(0, 0, 1), 0.2),  # 13
    Part.Circle(Vector(0.51, 1.75, 0), Vector(0, 0, 1), 0.2),  # 14
    Part.Circle(Vector(-3.21, 0.82, 0), Vector(0, 0, 1), 0.2),  # 15
    Part.Circle(Vector(-2.28, 0.82, 0), Vector(0, 0, 1), 0.2),  # 16
    Part.Circle(Vector(-1.35, 0.82, 0), Vector(0, 0, 1), 0.2),  # 17
    Part.Circle(Vector(-0.42, 0.82, 0), Vector(0, 0, 1), 0.2),  # 18
    Part.Circle(Vector(0.51, 0.82, 0), Vector(0, 0, 1), 0.2),  # 19
    Part.Circle(Vector(-3.21, -0.11, 0), Vector(0, 0, 1), 0.2),  # 20
    Part.Circle(Vector(-2.28, -0.11, 0), Vector(0, 0, 1), 0.2),  # 21
    Part.Circle(Vector(-1.35, -0.11, 0), Vector(0, 0, 1), 0.2),  # 22
    Part.Circle(Vector(-0.42, -0.11, 0), Vector(0, 0, 1), 0.2),  # 23
    Part.Circle(Vector(0.51, -0.11, 0), Vector(0, 0, 1), 0.2),  # 24
], False)
sketch8.addConstraint([
    Sketcher.Constraint("Equal", 0, 1),
    Sketcher.Constraint("Equal", 1, 2),
    Sketcher.Constraint("Equal", 2, 3),
    Sketcher.Constraint("Equal", 3, 4),
    Sketcher.Constraint("Equal", 4, 5),
    Sketcher.Constraint("Equal", 5, 6),
    Sketcher.Constraint("Equal", 6, 7),
    Sketcher.Constraint("Equal", 7, 8),
    Sketcher.Constraint("Equal", 8, 9),
    Sketcher.Constraint("Equal", 9, 10),
    Sketcher.Constraint("Equal", 10, 11),
    Sketcher.Constraint("Equal", 11, 12),
    Sketcher.Constraint("Equal", 12, 13),
    Sketcher.Constraint("Equal", 13, 14),
    Sketcher.Constraint("Equal", 14, 15),
    Sketcher.Constraint("Equal", 15, 16),
    Sketcher.Constraint("Equal", 16, 17),
    Sketcher.Constraint("Equal", 17, 18),
    Sketcher.Constraint("Equal", 18, 19),
    Sketcher.Constraint("Equal", 19, 20),
    Sketcher.Constraint("Equal", 20, 21),
    Sketcher.Constraint("Equal", 21, 22),
    Sketcher.Constraint("Equal", 22, 23),
    Sketcher.Constraint("Equal", 23, 24),
    Sketcher.Constraint("Horizontal", 0, 3, 1, 3),
    Sketcher.Constraint("Horizontal", 1, 3, 2, 3),
    Sketcher.Constraint("Horizontal", 2, 3, 3, 3),
    Sketcher.Constraint("Horizontal", 3, 3, 4, 3),
    Sketcher.Constraint("Horizontal", 5, 3, 6, 3),
    Sketcher.Constraint("Horizontal", 6, 3, 7, 3),
    Sketcher.Constraint("Horizontal", 7, 3, 8, 3),
    Sketcher.Constraint("Horizontal", 8, 3, 9, 3),
    Sketcher.Constraint("Horizontal", 10, 3, 11, 3),
    Sketcher.Constraint("Horizontal", 11, 3, 12, 3),
    Sketcher.Constraint("Horizontal", 12, 3, 13, 3),
    Sketcher.Constraint("Horizontal", 13, 3, 14, 3),
    Sketcher.Constraint("Horizontal", 15, 3, 16, 3),
    Sketcher.Constraint("Horizontal", 16, 3, 17, 3),
    Sketcher.Constraint("Horizontal", 17, 3, 18, 3),
    Sketcher.Constraint("Horizontal", 18, 3, 19, 3),
    Sketcher.Constraint("Horizontal", 20, 3, 21, 3),
    Sketcher.Constraint("Horizontal", 21, 3, 22, 3),
    Sketcher.Constraint("Horizontal", 22, 3, 23, 3),
    Sketcher.Constraint("Horizontal", 23, 3, 24, 3),
    Sketcher.Constraint("Vertical", 4, 3, 5, 3),
    Sketcher.Constraint("Vertical", 3, 3, 6, 3),
    Sketcher.Constraint("Vertical", 2, 3, 7, 3),
    Sketcher.Constraint("Vertical", 1, 3, 8, 3),
    Sketcher.Constraint("Vertical", 0, 3, 9, 3),
    Sketcher.Constraint("Vertical", 5, 3, 10, 3),
    Sketcher.Constraint("Vertical", 6, 3, 11, 3),
    Sketcher.Constraint("Vertical", 7, 3, 12, 3),
    Sketcher.Constraint("Vertical", 8, 3, 13, 3),
    Sketcher.Constraint("Vertical", 9, 3, 14, 3),
    Sketcher.Constraint("Vertical", 10, 3, 15, 3),
    Sketcher.Constraint("Vertical", 11, 3, 16, 3),
    Sketcher.Constraint("Vertical", 12, 3, 17, 3),
    Sketcher.Constraint("Vertical", 13, 3, 18, 3),
    Sketcher.Constraint("Vertical", 14, 3, 19, 3),
    Sketcher.Constraint("Vertical", 15, 3, 20, 3),
    Sketcher.Constraint("Vertical", 16, 3, 21, 3),
    Sketcher.Constraint("Vertical", 17, 3, 22, 3),
    Sketcher.Constraint("Vertical", 18, 3, 23, 3),
    Sketcher.Constraint("Vertical", 19, 3, 24, 3),
    Sketcher.Constraint("Diameter", 0, 0.4),
    Sketcher.Constraint("DistanceX", -1, 1, 0, 3, 0.51),
    Sketcher.Constraint("DistanceY", -1, 1, 0, 3, 3.61),
    Sketcher.Constraint("DistanceX", 1, 3, -1, 1, 0.42),
    Sketcher.Constraint("DistanceX", 2, 3, -1, 1, 1.35),
    Sketcher.Constraint("DistanceX", 3, 3, -1, 1, 2.28),
    Sketcher.Constraint("DistanceX", 4, 3, -1, 1, 3.21),
    Sketcher.Constraint("DistanceY", -1, 1, 5, 3, 2.68),
    Sketcher.Constraint("DistanceY", -1, 1, 10, 3, 1.75),
    Sketcher.Constraint("DistanceY", -1, 1, 15, 3, 0.82),
    Sketcher.Constraint("DistanceY", 20, 3, -1, 1, 0.11),
])
pocket6 = doc.addObject("PartDesign::Pocket", "Pocket005")
body.addObject(pocket6)
pocket6.Profile = sketch8
pocket6.Length = 0.25

# Sketch on XZ plane
sketch9 = doc.addObject("Sketcher::SketchObject", "Sketch008")
body.addObject(sketch9)
sketch9.AttachmentSupport = (doc.XZ_Plane, [""])
sketch9.MapMode = "FlatFace"
sketch9.AttachmentOffset = App.Placement(Vector(0, 0, -1), App.Rotation())
add_polygon(sketch9, [(7, -6.4), (-2.5, -6.4), (-2.5, -1.9), (-7, -1.9), (-7, 10.8), (7, 10.8)])  # lines 0-5
sketch9.addConstraint([
    Sketcher.Constraint("Horizontal", 0),
    Sketcher.Constraint("Vertical", 1),
    Sketcher.Constraint("Horizontal", 2),
    Sketcher.Constraint("Vertical", 3),
    Sketcher.Constraint("Horizontal", 4),
    Sketcher.Constraint("Vertical", 5),
    Sketcher.Constraint("Equal", 2, 1),
    Sketcher.Constraint("DistanceX", 4, 1, 4, 2, 14.0),
    Sketcher.Constraint("DistanceX", 0, 2, 0, 1, 9.5),
    Sketcher.Constraint("DistanceY", 3, 1, 3, 2, 12.7),
    Sketcher.Constraint("DistanceX", 2, 2, -1, 1, 7.0),
    Sketcher.Constraint("DistanceY", 0, 2, -1, 1, 6.4),
])
pad3 = doc.addObject("PartDesign::Pad", "Pad002")
body.addObject(pad3)
pad3.Profile = sketch9
pad3.Length = 2
pad3.Reversed = True

# Sketch on XZ plane
sketch10 = doc.addObject("Sketcher::SketchObject", "Sketch009")
body.addObject(sketch10)
sketch10.AttachmentSupport = (doc.XZ_Plane, [""])
sketch10.MapMode = "FlatFace"
sketch10.AttachmentOffset = App.Placement(Vector(0, 0, -1), App.Rotation())
sketch10.addGeometry([
    Part.LineSegment(Vector(-8, -4.4, 0), Vector(-8, -3.5, 0)),  # 0
    Part.ArcOfCircle(Part.Circle(Vector(-8.2, -4, 0), Vector(0, 0, 1), 0.5), math.radians(-64), math.radians(64)),  # 1
    Part.LineSegment(Vector(-8, -2.4, 0), Vector(-8, -1.5, 0)),  # 2
    Part.ArcOfCircle(Part.Circle(Vector(-8.2, -2, 0), Vector(0, 0, 1), 0.5), math.radians(-64), math.radians(64)),  # 3
    Part.LineSegment(Vector(-8, -0.4, 0), Vector(-8, 0.5, 0)),  # 4
    Part.ArcOfCircle(Part.Circle(Vector(-8.2, 0, 0), Vector(0, 0, 1), 0.5), math.radians(-64), math.radians(64)),  # 5
    Part.LineSegment(Vector(-8, 1.6, 0), Vector(-8, 2.5, 0)),  # 6
    Part.ArcOfCircle(Part.Circle(Vector(-8.2, 2, 0), Vector(0, 0, 1), 0.5), math.radians(-64), math.radians(64)),  # 7
    Part.LineSegment(Vector(-8, 3.6, 0), Vector(-8, 4.5, 0)),  # 8
    Part.ArcOfCircle(Part.Circle(Vector(-8.2, 4, 0), Vector(0, 0, 1), 0.5), math.radians(-64), math.radians(64)),  # 9
    Part.LineSegment(Vector(-8, 5.6, 0), Vector(-8, 6.5, 0)),  # 10
    Part.ArcOfCircle(Part.Circle(Vector(-8.2, 6, 0), Vector(0, 0, 1), 0.5), math.radians(-64), math.radians(64)),  # 11
    Part.LineSegment(Vector(-8, 7.6, 0), Vector(-8, 8.5, 0)),  # 12
    Part.ArcOfCircle(Part.Circle(Vector(-8.2, 8, 0), Vector(0, 0, 1), 0.5), math.radians(-64), math.radians(64)),  # 13
    Part.LineSegment(Vector(-8, 9.6, 0), Vector(-8, 10.5, 0)),  # 14
    Part.ArcOfCircle(Part.Circle(Vector(-8.2, 10, 0), Vector(0, 0, 1), 0.5), math.radians(-64), math.radians(64)),  # 15
    Part.LineSegment(Vector(8, -3.5, 0), Vector(8, -4.4, 0)),  # 16
    Part.ArcOfCircle(Part.Circle(Vector(8.2, -4, 0), Vector(0, 0, 1), 0.5), math.radians(116), math.radians(244)),  # 17
    Part.LineSegment(Vector(8, -1.5, 0), Vector(8, -2.4, 0)),  # 18
    Part.ArcOfCircle(Part.Circle(Vector(8.2, -2, 0), Vector(0, 0, 1), 0.5), math.radians(116), math.radians(244)),  # 19
    Part.LineSegment(Vector(8, 0.5, 0), Vector(8, -0.4, 0)),  # 20
    Part.ArcOfCircle(Part.Circle(Vector(8.2, 0, 0), Vector(0, 0, 1), 0.5), math.radians(116), math.radians(244)),  # 21
    Part.LineSegment(Vector(8, 2.5, 0), Vector(8, 1.6, 0)),  # 22
    Part.ArcOfCircle(Part.Circle(Vector(8.2, 2, 0), Vector(0, 0, 1), 0.5), math.radians(116), math.radians(244)),  # 23
    Part.LineSegment(Vector(8, 4.5, 0), Vector(8, 3.6, 0)),  # 24
    Part.ArcOfCircle(Part.Circle(Vector(8.2, 4, 0), Vector(0, 0, 1), 0.5), math.radians(116), math.radians(244)),  # 25
    Part.LineSegment(Vector(8, 6.5, 0), Vector(8, 5.6, 0)),  # 26
    Part.ArcOfCircle(Part.Circle(Vector(8.2, 6, 0), Vector(0, 0, 1), 0.5), math.radians(116), math.radians(244)),  # 27
    Part.LineSegment(Vector(8, 8.5, 0), Vector(8, 7.6, 0)),  # 28
    Part.ArcOfCircle(Part.Circle(Vector(8.2, 8, 0), Vector(0, 0, 1), 0.5), math.radians(116), math.radians(244)),  # 29
    Part.LineSegment(Vector(8, 10.5, 0), Vector(8, 9.6, 0)),  # 30
    Part.ArcOfCircle(Part.Circle(Vector(8.2, 10, 0), Vector(0, 0, 1), 0.5), math.radians(116), math.radians(244)),  # 31
], False)
sketch10.addConstraint([
    Sketcher.Constraint("Coincident", 0, 1, 1, 1),
    Sketcher.Constraint("Coincident", 1, 2, 0, 2),
    Sketcher.Constraint("Coincident", 2, 1, 3, 1),
    Sketcher.Constraint("Coincident", 3, 2, 2, 2),
    Sketcher.Constraint("Coincident", 4, 1, 5, 1),
    Sketcher.Constraint("Coincident", 5, 2, 4, 2),
    Sketcher.Constraint("Coincident", 6, 1, 7, 1),
    Sketcher.Constraint("Coincident", 7, 2, 6, 2),
    Sketcher.Constraint("Coincident", 8, 1, 9, 1),
    Sketcher.Constraint("Coincident", 9, 2, 8, 2),
    Sketcher.Constraint("Coincident", 10, 1, 11, 1),
    Sketcher.Constraint("Coincident", 11, 2, 10, 2),
    Sketcher.Constraint("Coincident", 12, 1, 13, 1),
    Sketcher.Constraint("Coincident", 13, 2, 12, 2),
    Sketcher.Constraint("Coincident", 14, 1, 15, 1),
    Sketcher.Constraint("Coincident", 15, 2, 14, 2),
    Sketcher.Constraint("Coincident", 16, 1, 17, 1),
    Sketcher.Constraint("Coincident", 17, 2, 16, 2),
    Sketcher.Constraint("Coincident", 18, 1, 19, 1),
    Sketcher.Constraint("Coincident", 19, 2, 18, 2),
    Sketcher.Constraint("Coincident", 20, 1, 21, 1),
    Sketcher.Constraint("Coincident", 21, 2, 20, 2),
    Sketcher.Constraint("Coincident", 22, 1, 23, 1),
    Sketcher.Constraint("Coincident", 23, 2, 22, 2),
    Sketcher.Constraint("Coincident", 24, 1, 25, 1),
    Sketcher.Constraint("Coincident", 25, 2, 24, 2),
    Sketcher.Constraint("Coincident", 26, 1, 27, 1),
    Sketcher.Constraint("Coincident", 27, 2, 26, 2),
    Sketcher.Constraint("Coincident", 28, 1, 29, 1),
    Sketcher.Constraint("Coincident", 29, 2, 28, 2),
    Sketcher.Constraint("Coincident", 30, 1, 31, 1),
    Sketcher.Constraint("Coincident", 31, 2, 30, 2),
    Sketcher.Constraint("Vertical", 0),
    Sketcher.Constraint("Vertical", 2),
    Sketcher.Constraint("Vertical", 4),
    Sketcher.Constraint("Vertical", 6),
    Sketcher.Constraint("Vertical", 8),
    Sketcher.Constraint("Vertical", 10),
    Sketcher.Constraint("Vertical", 12),
    Sketcher.Constraint("Vertical", 14),
    Sketcher.Constraint("Vertical", 16),
    Sketcher.Constraint("Vertical", 18),
    Sketcher.Constraint("Vertical", 20),
    Sketcher.Constraint("Vertical", 22),
    Sketcher.Constraint("Vertical", 24),
    Sketcher.Constraint("Vertical", 26),
    Sketcher.Constraint("Vertical", 28),
    Sketcher.Constraint("Vertical", 30),
    Sketcher.Constraint("Equal", 1, 3),
    Sketcher.Constraint("Equal", 3, 5),
    Sketcher.Constraint("Equal", 5, 7),
    Sketcher.Constraint("Equal", 7, 9),
    Sketcher.Constraint("Equal", 9, 11),
    Sketcher.Constraint("Equal", 11, 13),
    Sketcher.Constraint("Equal", 13, 15),
    Sketcher.Constraint("Equal", 15, 17),
    Sketcher.Constraint("Equal", 17, 19),
    Sketcher.Constraint("Equal", 19, 21),
    Sketcher.Constraint("Equal", 21, 23),
    Sketcher.Constraint("Equal", 23, 25),
    Sketcher.Constraint("Equal", 25, 27),
    Sketcher.Constraint("Equal", 27, 29),
    Sketcher.Constraint("Equal", 29, 31),
    Sketcher.Constraint("Symmetric", 9, 3, 17, 3, -1, 1),
    Sketcher.Constraint("Symmetric", 7, 3, 19, 3, -1, 1),
    Sketcher.Constraint("Symmetric", 5, 3, 21, 3, -1, 1),
    Sketcher.Constraint("Symmetric", 3, 3, 23, 3, -1, 1),
    Sketcher.Constraint("Symmetric", 1, 3, 25, 3, -1, 1),
    Sketcher.Constraint("Symmetric", 1, 3, 17, 3, -2),
    Sketcher.Constraint("Symmetric", 3, 3, 19, 3, -2),
    Sketcher.Constraint("Symmetric", 11, 3, 27, 3, -2),
    Sketcher.Constraint("Symmetric", 13, 3, 29, 3, -2),
    Sketcher.Constraint("Symmetric", 15, 3, 31, 3, -2),
    Sketcher.Constraint("Symmetric", 5, 2, 20, 1, -2),
    Sketcher.Constraint("Horizontal", 1, 2, 16, 1),
    Sketcher.Constraint("Horizontal", 3, 2, 18, 1),
    Sketcher.Constraint("Horizontal", 7, 2, 22, 1),
    Sketcher.Constraint("Horizontal", 9, 2, 24, 1),
    Sketcher.Constraint("Horizontal", 11, 2, 26, 1),
    Sketcher.Constraint("Horizontal", 13, 2, 28, 1),
    Sketcher.Constraint("Horizontal", 15, 2, 30, 1),
    Sketcher.Constraint("Vertical", 1, 3, 3, 3),
    Sketcher.Constraint("Vertical", 3, 3, 5, 3),
    Sketcher.Constraint("Vertical", 9, 3, 11, 3),
    Sketcher.Constraint("Vertical", 11, 3, 13, 3),
    Sketcher.Constraint("Vertical", 13, 3, 15, 3),
    Sketcher.Constraint("Vertical", 1, 2, 2, 1),
    Sketcher.Constraint("Vertical", 3, 2, 4, 1),
    Sketcher.Constraint("Vertical", 5, 2, 6, 1),
    Sketcher.Constraint("Vertical", 7, 2, 8, 1),
    Sketcher.Constraint("Vertical", 9, 2, 10, 1),
    Sketcher.Constraint("Vertical", 11, 2, 12, 1),
    Sketcher.Constraint("Vertical", 13, 2, 14, 1),
    Sketcher.Constraint("Radius", 1, 0.5),
    Sketcher.Constraint("DistanceY", 0, 1, 0, 2, 0.9),
    Sketcher.Constraint("DistanceX", 0, 1, -1, 1, 8.0),
    Sketcher.Constraint("DistanceY", 1, 3, 3, 3, 2.0),
    Sketcher.Constraint("DistanceY", 3, 3, 5, 3, 2.0),
    Sketcher.Constraint("DistanceY", 9, 3, 11, 3, 2.0),
    Sketcher.Constraint("DistanceY", 11, 3, 13, 3, 2.0),
    Sketcher.Constraint("DistanceY", 13, 3, 15, 3, 2.0),
])
pocket7 = doc.addObject("PartDesign::Pocket", "Pocket006")
body.addObject(pocket7)
pocket7.Profile = sketch10
pocket7.Length = 2
pocket7.Reversed = True

doc.recompute()
